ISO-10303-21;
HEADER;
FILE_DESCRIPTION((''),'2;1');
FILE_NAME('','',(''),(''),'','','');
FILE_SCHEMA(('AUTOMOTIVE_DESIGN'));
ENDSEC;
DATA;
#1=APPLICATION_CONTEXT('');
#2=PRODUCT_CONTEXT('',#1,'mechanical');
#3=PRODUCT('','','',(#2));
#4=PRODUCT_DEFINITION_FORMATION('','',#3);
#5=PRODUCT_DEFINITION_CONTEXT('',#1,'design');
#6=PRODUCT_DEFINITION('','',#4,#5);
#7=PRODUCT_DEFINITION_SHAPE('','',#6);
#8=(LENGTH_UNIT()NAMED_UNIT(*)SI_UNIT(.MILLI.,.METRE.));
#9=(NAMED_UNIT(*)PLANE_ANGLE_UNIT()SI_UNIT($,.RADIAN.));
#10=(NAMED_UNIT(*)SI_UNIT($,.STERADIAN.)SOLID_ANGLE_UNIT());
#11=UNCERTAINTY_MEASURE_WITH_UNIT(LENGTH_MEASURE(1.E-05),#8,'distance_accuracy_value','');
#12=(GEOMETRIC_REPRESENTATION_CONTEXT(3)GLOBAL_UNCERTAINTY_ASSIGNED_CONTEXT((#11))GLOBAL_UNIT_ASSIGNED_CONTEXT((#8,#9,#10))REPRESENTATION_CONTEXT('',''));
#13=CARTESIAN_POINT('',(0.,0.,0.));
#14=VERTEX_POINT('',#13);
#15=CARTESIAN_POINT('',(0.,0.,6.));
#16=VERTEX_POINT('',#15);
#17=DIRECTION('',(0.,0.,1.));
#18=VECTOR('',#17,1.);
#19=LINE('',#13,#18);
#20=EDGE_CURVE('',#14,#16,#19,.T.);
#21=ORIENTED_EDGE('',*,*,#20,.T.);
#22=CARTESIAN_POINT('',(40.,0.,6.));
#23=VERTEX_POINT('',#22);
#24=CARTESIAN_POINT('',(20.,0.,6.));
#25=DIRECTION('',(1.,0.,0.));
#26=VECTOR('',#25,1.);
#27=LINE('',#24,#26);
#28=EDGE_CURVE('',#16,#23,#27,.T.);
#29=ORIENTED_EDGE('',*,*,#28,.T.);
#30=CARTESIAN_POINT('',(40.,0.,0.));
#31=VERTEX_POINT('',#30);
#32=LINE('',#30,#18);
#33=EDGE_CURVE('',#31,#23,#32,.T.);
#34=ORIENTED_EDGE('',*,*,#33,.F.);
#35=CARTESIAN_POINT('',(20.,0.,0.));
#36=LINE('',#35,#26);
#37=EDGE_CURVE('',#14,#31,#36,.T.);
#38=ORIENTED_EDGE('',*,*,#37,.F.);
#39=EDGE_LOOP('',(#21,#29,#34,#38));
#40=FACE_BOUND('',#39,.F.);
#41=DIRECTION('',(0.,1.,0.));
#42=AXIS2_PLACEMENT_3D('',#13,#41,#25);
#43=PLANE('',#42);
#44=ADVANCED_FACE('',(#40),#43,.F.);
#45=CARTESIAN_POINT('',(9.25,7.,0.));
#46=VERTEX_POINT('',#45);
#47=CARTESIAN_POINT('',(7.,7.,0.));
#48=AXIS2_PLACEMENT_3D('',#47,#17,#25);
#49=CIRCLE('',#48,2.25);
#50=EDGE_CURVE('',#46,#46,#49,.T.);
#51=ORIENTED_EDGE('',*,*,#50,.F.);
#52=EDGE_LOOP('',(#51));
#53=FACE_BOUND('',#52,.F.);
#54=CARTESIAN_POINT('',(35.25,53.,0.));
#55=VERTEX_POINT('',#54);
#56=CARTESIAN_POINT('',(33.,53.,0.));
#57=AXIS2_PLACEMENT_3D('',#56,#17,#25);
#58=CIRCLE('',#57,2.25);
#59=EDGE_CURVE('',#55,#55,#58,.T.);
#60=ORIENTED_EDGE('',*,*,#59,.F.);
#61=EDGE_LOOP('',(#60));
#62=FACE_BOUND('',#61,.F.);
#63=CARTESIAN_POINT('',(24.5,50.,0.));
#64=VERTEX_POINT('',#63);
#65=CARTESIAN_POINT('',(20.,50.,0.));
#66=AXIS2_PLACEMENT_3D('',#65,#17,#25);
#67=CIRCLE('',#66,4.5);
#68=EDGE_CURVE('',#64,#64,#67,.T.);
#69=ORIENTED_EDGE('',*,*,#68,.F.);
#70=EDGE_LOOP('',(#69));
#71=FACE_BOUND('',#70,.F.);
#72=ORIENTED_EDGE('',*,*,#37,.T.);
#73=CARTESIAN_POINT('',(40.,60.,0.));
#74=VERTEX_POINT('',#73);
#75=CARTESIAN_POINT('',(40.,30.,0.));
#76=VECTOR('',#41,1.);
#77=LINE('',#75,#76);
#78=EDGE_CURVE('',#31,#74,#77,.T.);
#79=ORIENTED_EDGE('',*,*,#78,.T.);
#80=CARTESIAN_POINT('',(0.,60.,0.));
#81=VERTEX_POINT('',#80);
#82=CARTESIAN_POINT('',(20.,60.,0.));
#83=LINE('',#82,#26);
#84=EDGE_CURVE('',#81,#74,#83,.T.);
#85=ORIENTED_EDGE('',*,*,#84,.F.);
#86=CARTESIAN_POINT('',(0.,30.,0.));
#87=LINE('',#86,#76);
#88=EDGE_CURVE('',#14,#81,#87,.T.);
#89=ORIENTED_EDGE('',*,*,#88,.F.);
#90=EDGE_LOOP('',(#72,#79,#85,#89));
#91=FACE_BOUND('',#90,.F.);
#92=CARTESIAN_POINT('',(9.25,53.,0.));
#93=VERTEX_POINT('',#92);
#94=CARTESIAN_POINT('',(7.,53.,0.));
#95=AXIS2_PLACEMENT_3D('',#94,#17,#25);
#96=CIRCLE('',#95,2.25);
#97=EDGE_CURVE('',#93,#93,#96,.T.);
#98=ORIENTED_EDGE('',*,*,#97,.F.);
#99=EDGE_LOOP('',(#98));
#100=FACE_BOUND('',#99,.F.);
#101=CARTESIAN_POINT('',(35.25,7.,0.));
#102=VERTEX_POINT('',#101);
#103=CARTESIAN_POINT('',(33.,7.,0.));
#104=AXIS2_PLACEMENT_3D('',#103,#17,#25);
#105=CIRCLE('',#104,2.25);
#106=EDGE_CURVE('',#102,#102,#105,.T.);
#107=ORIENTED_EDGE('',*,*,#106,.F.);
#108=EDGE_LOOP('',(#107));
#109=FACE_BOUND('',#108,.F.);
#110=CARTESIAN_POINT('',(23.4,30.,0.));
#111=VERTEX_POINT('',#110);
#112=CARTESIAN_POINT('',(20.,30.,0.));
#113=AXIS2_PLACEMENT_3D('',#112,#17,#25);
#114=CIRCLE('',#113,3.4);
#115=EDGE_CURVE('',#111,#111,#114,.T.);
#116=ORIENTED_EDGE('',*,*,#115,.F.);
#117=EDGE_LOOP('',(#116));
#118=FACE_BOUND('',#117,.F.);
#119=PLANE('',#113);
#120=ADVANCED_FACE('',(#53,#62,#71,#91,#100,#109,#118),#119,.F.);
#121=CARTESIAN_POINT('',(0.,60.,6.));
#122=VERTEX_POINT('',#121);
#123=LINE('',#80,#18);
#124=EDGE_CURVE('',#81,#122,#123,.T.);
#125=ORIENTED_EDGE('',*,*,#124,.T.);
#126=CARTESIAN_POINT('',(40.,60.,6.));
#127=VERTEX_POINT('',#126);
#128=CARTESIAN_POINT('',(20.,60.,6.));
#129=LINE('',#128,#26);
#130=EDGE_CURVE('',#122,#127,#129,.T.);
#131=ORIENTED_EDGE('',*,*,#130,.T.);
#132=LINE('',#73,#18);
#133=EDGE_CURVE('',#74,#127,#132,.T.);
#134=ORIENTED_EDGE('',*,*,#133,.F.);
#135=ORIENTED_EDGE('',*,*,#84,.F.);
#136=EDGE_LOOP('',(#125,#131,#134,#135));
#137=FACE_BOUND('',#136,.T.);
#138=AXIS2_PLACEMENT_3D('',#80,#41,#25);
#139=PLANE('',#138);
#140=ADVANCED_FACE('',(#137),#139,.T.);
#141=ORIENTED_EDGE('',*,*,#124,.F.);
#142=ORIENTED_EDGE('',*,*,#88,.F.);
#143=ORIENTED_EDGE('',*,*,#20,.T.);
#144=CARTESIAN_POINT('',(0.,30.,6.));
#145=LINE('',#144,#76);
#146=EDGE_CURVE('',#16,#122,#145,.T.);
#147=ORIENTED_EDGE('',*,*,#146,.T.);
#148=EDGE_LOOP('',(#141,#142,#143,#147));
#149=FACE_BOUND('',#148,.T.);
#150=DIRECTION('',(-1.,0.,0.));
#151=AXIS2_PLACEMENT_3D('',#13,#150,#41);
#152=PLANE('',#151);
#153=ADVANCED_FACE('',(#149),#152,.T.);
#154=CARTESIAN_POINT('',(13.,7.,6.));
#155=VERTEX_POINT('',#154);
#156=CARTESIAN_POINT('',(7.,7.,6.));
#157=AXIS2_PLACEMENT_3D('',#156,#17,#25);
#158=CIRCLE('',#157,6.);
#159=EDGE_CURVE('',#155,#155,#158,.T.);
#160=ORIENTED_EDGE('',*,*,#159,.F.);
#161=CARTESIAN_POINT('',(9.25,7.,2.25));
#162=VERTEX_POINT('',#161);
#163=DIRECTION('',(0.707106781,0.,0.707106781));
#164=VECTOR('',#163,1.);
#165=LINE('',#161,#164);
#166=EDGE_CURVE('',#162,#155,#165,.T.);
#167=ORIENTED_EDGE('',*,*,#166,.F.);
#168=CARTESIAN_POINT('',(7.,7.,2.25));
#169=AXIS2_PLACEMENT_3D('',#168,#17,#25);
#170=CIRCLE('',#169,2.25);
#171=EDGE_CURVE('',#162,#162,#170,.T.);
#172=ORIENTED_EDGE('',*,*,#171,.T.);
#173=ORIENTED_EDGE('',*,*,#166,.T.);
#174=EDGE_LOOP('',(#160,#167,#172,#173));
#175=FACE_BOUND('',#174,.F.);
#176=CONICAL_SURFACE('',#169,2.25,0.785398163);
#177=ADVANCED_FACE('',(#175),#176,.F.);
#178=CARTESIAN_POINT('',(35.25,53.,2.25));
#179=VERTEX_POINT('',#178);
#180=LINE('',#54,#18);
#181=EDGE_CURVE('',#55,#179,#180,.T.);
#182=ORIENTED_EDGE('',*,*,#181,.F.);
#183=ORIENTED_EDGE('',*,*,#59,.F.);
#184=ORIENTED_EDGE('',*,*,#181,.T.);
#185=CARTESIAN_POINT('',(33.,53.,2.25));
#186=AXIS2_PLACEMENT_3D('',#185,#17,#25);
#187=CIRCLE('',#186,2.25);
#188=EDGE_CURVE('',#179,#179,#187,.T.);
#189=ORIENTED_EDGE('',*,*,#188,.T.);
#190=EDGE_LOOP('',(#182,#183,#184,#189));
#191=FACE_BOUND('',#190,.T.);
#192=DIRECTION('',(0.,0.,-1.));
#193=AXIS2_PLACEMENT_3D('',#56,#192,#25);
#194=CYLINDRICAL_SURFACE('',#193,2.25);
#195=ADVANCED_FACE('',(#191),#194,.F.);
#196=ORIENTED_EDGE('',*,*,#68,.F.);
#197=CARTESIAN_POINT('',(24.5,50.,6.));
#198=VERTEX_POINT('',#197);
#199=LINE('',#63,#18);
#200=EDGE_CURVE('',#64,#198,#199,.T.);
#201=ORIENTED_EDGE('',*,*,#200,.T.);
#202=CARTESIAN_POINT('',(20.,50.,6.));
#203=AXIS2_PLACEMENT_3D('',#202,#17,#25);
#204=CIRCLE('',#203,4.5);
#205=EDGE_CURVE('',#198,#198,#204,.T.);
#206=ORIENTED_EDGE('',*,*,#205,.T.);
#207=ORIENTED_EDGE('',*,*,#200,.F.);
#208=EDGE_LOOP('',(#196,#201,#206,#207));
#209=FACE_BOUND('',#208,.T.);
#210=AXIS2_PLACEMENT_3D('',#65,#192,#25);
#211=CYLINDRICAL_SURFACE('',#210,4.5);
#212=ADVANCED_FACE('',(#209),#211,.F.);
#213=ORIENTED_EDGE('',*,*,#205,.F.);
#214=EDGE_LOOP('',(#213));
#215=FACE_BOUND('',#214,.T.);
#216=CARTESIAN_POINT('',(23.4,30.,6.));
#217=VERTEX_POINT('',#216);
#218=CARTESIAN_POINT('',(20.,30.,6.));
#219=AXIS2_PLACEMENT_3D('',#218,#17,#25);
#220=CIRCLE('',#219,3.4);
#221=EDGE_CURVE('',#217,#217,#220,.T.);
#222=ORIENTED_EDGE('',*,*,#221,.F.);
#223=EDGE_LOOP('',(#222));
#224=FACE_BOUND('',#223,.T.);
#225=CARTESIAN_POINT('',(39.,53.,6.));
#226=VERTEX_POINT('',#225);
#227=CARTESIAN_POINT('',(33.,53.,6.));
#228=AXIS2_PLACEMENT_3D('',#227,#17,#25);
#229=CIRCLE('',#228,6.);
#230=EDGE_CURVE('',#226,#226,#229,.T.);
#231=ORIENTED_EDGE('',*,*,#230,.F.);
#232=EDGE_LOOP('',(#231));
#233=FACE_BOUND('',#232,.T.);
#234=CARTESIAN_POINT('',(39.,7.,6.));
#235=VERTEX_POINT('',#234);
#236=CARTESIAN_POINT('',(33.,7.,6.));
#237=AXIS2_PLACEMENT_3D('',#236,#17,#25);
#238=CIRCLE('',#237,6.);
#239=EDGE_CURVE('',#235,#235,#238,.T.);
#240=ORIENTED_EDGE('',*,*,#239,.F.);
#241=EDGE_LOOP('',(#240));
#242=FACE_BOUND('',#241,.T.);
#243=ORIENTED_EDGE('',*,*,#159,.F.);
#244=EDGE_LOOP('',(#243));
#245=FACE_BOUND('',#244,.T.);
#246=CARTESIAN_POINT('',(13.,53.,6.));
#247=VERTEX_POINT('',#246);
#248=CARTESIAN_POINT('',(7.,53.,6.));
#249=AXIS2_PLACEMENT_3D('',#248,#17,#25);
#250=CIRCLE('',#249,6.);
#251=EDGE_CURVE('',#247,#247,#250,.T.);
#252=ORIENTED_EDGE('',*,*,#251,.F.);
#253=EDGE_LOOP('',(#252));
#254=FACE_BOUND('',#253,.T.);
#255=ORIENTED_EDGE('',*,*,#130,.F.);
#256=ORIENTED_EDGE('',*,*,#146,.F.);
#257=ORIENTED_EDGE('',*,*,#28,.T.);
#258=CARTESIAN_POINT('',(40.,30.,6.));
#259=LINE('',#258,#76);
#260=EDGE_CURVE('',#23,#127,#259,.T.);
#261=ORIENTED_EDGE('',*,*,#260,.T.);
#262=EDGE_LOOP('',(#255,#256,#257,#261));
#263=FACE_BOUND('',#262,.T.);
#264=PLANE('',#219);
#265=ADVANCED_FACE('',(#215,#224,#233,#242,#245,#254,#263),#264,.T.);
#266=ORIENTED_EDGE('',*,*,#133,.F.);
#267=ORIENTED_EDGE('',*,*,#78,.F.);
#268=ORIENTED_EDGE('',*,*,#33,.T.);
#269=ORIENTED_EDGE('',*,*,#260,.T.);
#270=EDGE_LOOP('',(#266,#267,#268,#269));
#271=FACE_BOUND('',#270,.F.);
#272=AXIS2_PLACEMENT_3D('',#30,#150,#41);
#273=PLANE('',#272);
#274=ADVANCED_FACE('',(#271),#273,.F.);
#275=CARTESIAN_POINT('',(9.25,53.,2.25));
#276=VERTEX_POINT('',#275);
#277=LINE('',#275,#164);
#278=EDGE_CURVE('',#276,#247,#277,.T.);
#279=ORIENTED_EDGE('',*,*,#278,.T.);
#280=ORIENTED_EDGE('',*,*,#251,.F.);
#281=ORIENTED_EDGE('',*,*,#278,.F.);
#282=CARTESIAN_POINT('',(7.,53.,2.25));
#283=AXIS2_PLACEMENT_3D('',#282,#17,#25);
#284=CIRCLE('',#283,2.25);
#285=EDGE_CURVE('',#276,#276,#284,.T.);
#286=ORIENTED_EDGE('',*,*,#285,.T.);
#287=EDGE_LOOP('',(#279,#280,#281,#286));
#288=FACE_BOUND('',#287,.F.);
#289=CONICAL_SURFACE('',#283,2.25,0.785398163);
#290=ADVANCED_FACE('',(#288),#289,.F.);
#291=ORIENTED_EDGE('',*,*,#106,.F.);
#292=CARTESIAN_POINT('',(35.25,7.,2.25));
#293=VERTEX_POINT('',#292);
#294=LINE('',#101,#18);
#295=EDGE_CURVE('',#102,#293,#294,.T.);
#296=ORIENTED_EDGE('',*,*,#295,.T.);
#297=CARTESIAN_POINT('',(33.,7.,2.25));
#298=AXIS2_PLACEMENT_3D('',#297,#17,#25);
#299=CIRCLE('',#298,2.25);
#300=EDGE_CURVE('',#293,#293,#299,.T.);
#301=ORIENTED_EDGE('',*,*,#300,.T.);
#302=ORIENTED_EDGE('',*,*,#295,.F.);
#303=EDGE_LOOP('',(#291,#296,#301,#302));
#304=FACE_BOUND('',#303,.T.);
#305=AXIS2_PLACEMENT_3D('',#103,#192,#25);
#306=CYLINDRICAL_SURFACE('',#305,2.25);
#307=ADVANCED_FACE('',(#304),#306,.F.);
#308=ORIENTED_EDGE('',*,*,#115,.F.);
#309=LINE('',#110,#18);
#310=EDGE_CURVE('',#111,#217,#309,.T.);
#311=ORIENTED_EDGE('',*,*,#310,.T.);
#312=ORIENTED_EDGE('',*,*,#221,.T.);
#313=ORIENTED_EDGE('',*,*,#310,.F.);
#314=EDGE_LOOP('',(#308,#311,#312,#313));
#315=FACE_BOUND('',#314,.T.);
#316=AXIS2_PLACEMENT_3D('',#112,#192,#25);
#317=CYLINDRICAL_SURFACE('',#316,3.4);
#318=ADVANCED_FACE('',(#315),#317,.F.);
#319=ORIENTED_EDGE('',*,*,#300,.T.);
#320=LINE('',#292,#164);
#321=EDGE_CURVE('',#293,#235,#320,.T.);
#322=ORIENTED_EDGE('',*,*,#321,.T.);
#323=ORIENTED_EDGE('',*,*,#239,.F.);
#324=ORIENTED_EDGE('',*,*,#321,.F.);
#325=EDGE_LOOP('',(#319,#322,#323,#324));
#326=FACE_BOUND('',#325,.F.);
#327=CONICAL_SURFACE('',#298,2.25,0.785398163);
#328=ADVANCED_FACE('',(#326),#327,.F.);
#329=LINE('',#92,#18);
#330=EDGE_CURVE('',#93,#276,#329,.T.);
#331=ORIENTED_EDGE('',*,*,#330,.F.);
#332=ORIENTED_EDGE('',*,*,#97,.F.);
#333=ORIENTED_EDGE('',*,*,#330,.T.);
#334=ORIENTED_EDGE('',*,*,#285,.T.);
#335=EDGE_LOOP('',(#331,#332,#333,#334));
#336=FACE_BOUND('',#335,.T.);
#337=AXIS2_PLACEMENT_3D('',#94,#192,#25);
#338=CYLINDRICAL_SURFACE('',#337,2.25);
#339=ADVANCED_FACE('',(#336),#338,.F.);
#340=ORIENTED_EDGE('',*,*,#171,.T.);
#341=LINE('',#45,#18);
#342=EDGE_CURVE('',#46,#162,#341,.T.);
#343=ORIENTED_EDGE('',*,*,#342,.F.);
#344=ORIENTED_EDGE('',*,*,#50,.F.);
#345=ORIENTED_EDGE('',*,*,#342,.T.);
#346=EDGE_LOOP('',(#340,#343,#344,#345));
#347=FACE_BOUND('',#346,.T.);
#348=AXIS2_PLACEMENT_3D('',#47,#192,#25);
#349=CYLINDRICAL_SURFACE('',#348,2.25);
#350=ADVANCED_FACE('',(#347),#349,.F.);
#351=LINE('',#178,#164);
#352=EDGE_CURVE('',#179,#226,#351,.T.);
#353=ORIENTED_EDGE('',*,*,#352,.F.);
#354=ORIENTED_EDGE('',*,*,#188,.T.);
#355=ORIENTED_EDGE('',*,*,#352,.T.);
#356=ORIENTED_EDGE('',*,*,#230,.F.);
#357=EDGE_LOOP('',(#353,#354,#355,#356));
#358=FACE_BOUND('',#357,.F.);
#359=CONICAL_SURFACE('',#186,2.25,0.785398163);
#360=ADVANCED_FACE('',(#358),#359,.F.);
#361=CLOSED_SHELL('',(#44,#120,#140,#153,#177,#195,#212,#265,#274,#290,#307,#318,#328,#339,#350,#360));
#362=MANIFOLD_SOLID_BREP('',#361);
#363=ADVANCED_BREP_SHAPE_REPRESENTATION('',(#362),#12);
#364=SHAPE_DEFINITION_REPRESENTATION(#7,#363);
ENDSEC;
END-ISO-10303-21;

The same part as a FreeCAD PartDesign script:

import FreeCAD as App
import Part
import Sketcher

V = App.Vector


def edges_at(feature, points):
    """Names of the edges that pass closest to the given points."""
    edges = feature.Shape.Edges
    near = lambda p: min(range(len(edges)), key=lambda i: edges[i].distToShape(Part.Vertex(*p))[0])
    return sorted({f"Edge{near(p) + 1}" for p in points})

doc = App.newDocument("Part")
params = doc.addObject("Spreadsheet::Sheet", "Params")
for row, (alias, value) in enumerate([
    ("sketch1_diameter", "9 mm"),
    ("sketch1_diameter2", "4.5 mm"),
    ("sketch1_diameter3", "6.8 mm"),
    ("sketch1_width", "40 mm"),
    ("sketch1_height", "60 mm"),
    ("pad1_length", "6 mm"),
    ("chamfer_size", "3.75 mm"),
], start=1):
    params.set(f"A{row}", alias)
    params.set(f"B{row}", "=" + value)
    params.setAlias(f"B{row}", alias)

body = doc.addObject("PartDesign::Body", "Body")

# Sketch on XY plane
sketch1 = body.newObject("Sketcher::SketchObject", "Sketch")
sketch1.AttachmentSupport = (doc.getObject("XY_Plane"), [""])
sketch1.MapMode = "FlatFace"
sketch1.addGeometry(Part.LineSegment(V(0, 60, 0), V(0, 0, 0)), False)
sketch1.addGeometry(Part.LineSegment(V(0, 0, 0), V(40, 0, 0)), False)
sketch1.addGeometry(Part.LineSegment(V(40, 0, 0), V(40, 60, 0)), False)
sketch1.addGeometry(Part.LineSegment(V(40, 60, 0), V(0, 60, 0)), False)
sketch1.addGeometry(Part.Circle(V(7, 7, 0), V(0, 0, 1), 2.25), False)
sketch1.addGeometry(Part.Circle(V(33, 7, 0), V(0, 0, 1), 2.25), False)
sketch1.addGeometry(Part.Circle(V(7, 53, 0), V(0, 0, 1), 2.25), False)
sketch1.addGeometry(Part.Circle(V(20, 30, 0), V(0, 0, 1), 3.4), False)
sketch1.addGeometry(Part.Circle(V(20, 50, 0), V(0, 0, 1), 4.5), False)
sketch1.addGeometry(Part.Circle(V(33, 53, 0), V(0, 0, 1), 2.25), False)
sketch1.addConstraint(Sketcher.Constraint("Coincident", 0, 2, 1, 1))
sketch1.addConstraint(Sketcher.Constraint("Coincident", 1, 2, 2, 1))
sketch1.addConstraint(Sketcher.Constraint("Coincident", 2, 2, 3, 1))
sketch1.addConstraint(Sketcher.Constraint("Coincident", 3, 2, 0, 1))
sketch1.addConstraint(Sketcher.Constraint("Vertical", 0))
sketch1.addConstraint(Sketcher.Constraint("Horizontal", 1))
sketch1.addConstraint(Sketcher.Constraint("Vertical", 2))
sketch1.addConstraint(Sketcher.Constraint("Horizontal", 3))
sketch1.addConstraint(Sketcher.Constraint("Coincident", 0, 2, -1, 1))
sketch1.addConstraint(Sketcher.Constraint("Equal", 4, 5))
sketch1.addConstraint(Sketcher.Constraint("Equal", 5, 6))
sketch1.addConstraint(Sketcher.Constraint("Equal", 6, 9))
sketch1.addConstraint(Sketcher.Constraint("Horizontal", 4, 3, 5, 3))
sketch1.addConstraint(Sketcher.Constraint("Horizontal", 6, 3, 9, 3))
sketch1.addConstraint(Sketcher.Constraint("Vertical", 4, 3, 6, 3))
sketch1.addConstraint(Sketcher.Constraint("Vertical", 7, 3, 8, 3))
sketch1.addConstraint(Sketcher.Constraint("Vertical", 5, 3, 9, 3))
sketch1.addConstraint(Sketcher.Constraint("Diameter", 8, 9.0))
sketch1.addConstraint(Sketcher.Constraint("Diameter", 4, 4.5))
sketch1.addConstraint(Sketcher.Constraint("Diameter", 7, 6.8))
sketch1.addConstraint(Sketcher.Constraint("DistanceX", 1, 1, 1, 2, 40.0))
sketch1.addConstraint(Sketcher.Constraint("DistanceY", 0, 2, 0, 1, 60.0))
sketch1.addConstraint(Sketcher.Constraint("DistanceX", -1, 1, 4, 3, 7.0))
sketch1.addConstraint(Sketcher.Constraint("DistanceY", -1, 1, 4, 3, 7.0))
sketch1.addConstraint(Sketcher.Constraint("DistanceX", -1, 1, 5, 3, 33.0))
sketch1.addConstraint(Sketcher.Constraint("DistanceY", -1, 1, 6, 3, 53.0))
sketch1.addConstraint(Sketcher.Constraint("DistanceX", -1, 1, 7, 3, 20.0))
sketch1.addConstraint(Sketcher.Constraint("DistanceY", -1, 1, 7, 3, 30.0))
sketch1.addConstraint(Sketcher.Constraint("DistanceY", -1, 1, 8, 3, 50.0))
sketch1.setExpression("Constraints[17]", "Params.sketch1_diameter")
sketch1.setExpression("Constraints[18]", "Params.sketch1_diameter2")
sketch1.setExpression("Constraints[19]", "Params.sketch1_diameter3")
sketch1.setExpression("Constraints[20]", "Params.sketch1_width")
sketch1.setExpression("Constraints[21]", "Params.sketch1_height")
pad1 = body.newObject("PartDesign::Pad", "Pad")
pad1.Profile = sketch1
pad1.setExpression("Length", "Params.pad1_length")
doc.recompute()

chamfer = body.newObject("PartDesign::Chamfer", "Chamfer")
chamfer.Base = (pad1, edges_at(pad1, [
    (4.75, 7, 6),
    (30.75, 7, 6),
    (30.75, 53, 6),
    (4.75, 53, 6),
]))
chamfer.setExpression("Size", "Params.chamfer_size")

doc.recompute()
